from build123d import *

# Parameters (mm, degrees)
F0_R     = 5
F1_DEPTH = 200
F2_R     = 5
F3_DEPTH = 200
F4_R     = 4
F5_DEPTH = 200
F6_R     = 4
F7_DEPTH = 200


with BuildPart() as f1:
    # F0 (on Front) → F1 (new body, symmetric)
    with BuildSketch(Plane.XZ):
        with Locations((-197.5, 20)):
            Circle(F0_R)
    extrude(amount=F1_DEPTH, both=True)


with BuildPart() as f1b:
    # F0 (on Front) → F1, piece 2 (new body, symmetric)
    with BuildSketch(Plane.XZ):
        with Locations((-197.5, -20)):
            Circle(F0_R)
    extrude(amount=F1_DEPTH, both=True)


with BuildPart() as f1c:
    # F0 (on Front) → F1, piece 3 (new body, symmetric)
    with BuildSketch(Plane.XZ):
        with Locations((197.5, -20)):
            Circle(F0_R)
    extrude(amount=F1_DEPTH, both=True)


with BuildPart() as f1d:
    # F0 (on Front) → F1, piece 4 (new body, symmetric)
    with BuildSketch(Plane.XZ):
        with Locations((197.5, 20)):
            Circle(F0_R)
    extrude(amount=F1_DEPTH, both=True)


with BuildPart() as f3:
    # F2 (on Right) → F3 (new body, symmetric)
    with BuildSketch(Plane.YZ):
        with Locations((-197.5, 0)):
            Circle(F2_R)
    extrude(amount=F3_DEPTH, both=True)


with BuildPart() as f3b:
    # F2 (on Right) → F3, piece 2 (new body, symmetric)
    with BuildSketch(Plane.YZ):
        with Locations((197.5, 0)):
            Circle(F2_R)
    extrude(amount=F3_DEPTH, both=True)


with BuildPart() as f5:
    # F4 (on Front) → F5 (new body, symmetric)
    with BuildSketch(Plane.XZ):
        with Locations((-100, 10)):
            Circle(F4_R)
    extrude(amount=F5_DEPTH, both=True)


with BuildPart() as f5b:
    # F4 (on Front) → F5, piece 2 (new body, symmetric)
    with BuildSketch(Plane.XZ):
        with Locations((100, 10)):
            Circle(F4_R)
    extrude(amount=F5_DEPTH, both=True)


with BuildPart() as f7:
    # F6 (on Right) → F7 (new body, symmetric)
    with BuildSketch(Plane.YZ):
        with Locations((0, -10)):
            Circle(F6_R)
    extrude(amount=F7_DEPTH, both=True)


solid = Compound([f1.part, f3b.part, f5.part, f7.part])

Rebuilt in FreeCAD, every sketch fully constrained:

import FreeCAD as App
import Part
import Sketcher
Q = App.Units.Quantity

doc = App.newDocument("Part")
params = doc.addObject("Spreadsheet::Sheet", "Params")
for row, (alias, value) in enumerate([
    ("sketch1_diameter", "10 mm"),
    ("pad1_length", "400 mm"),
    ("sketch2_diameter", "10 mm"),
    ("pad2_length", "400 mm"),
    ("sketch3_diameter", "10 mm"),
    ("pad3_length", "400 mm"),
    ("sketch4_diameter", "10 mm"),
    ("pad4_length", "400 mm"),
    ("sketch5_diameter", "10 mm"),
    ("pad5_length", "400 mm"),
    ("sketch6_diameter", "10 mm"),
    ("pad6_length", "400 mm"),
    ("sketch7_diameter", "8 mm"),
    ("pad7_length", "400 mm"),
    ("sketch8_diameter", "8 mm"),
    ("pad8_length", "400 mm"),
    ("sketch9_diameter", "8 mm"),
    ("pad9_length", "400 mm"),
], start=1):
    params.set(f"A{row}", alias)
    params.set(f"B{row}", "=" + value)
    params.setAlias(f"B{row}", alias)

body = doc.addObject("PartDesign::Body", "Body")

# Sketch on XZ plane
sketch1 = doc.addObject("Sketcher::SketchObject", "Sketch")
body.addObject(sketch1)
sketch1.AttachmentSupport = (doc.XZ_Plane, [""])
sketch1.MapMode = "FlatFace"
sketch1.addGeometry(Part.Circle(App.Vector(-197.5, 20, 0), App.Vector(0, 0, 1), 5), False)
sketch1.addConstraint(Sketcher.Constraint("Diameter", 0, Q("10 mm")))
sketch1.addConstraint(Sketcher.Constraint("DistanceY", -1, 1, 0, 3, Q("20 mm")))
sketch1.addConstraint(Sketcher.Constraint("DistanceX", 0, 3, -1, 1, Q("197.5 mm")))
sketch1.setExpression("Constraints[0]", "Params.sketch1_diameter")
pad1 = doc.addObject("PartDesign::Pad", "Pad")
body.addObject(pad1)
pad1.Profile = sketch1
pad1.setExpression("Length", "Params.pad1_length")
pad1.Midplane = True
body2 = doc.addObject("PartDesign::Body", "Body001")

# Sketch on XZ plane
sketch2 = doc.addObject("Sketcher::SketchObject", "Sketch001")
body2.addObject(sketch2)
sketch2.AttachmentSupport = (doc.getObject("XZ_Plane001"), [""])
sketch2.MapMode = "FlatFace"
sketch2.addGeometry(Part.Circle(App.Vector(-197.5, -20, 0), App.Vector(0, 0, 1), 5), False)
sketch2.addConstraint(Sketcher.Constraint("Diameter", 0, Q("10 mm")))
sketch2.addConstraint(Sketcher.Constraint("DistanceY", 0, 3, -1, 1, Q("20 mm")))
sketch2.addConstraint(Sketcher.Constraint("DistanceX", 0, 3, -1, 1, Q("197.5 mm")))
sketch2.setExpression("Constraints[0]", "Params.sketch2_diameter")
pad2 = doc.addObject("PartDesign::Pad", "Pad001")
body2.addObject(pad2)
pad2.Profile = sketch2
pad2.setExpression("Length", "Params.pad2_length")
pad2.Midplane = True
body3 = doc.addObject("PartDesign::Body", "Body002")

# Sketch on XZ plane
sketch3 = doc.addObject("Sketcher::SketchObject", "Sketch002")
body3.addObject(sketch3)
sketch3.AttachmentSupport = (doc.getObject("XZ_Plane002"), [""])
sketch3.MapMode = "FlatFace"
sketch3.addGeometry(Part.Circle(App.Vector(197.5, -20, 0), App.Vector(0, 0, 1), 5), False)
sketch3.addConstraint(Sketcher.Constraint("Diameter", 0, Q("10 mm")))
sketch3.addConstraint(Sketcher.Constraint("DistanceY", 0, 3, -1, 1, Q("20 mm")))
sketch3.addConstraint(Sketcher.Constraint("DistanceX", -1, 1, 0, 3, Q("197.5 mm")))
sketch3.setExpression("Constraints[0]", "Params.sketch3_diameter")
pad3 = doc.addObject("PartDesign::Pad", "Pad002")
body3.addObject(pad3)
pad3.Profile = sketch3
pad3.setExpression("Length", "Params.pad3_length")
pad3.Midplane = True
body4 = doc.addObject("PartDesign::Body", "Body003")

# Sketch on XZ plane
sketch4 = doc.addObject("Sketcher::SketchObject", "Sketch003")
body4.addObject(sketch4)
sketch4.AttachmentSupport = (doc.getObject("XZ_Plane003"), [""])
sketch4.MapMode = "FlatFace"
sketch4.addGeometry(Part.Circle(App.Vector(197.5, 20, 0), App.Vector(0, 0, 1), 5), False)
sketch4.addConstraint(Sketcher.Constraint("Diameter", 0, Q("10 mm")))
sketch4.addConstraint(Sketcher.Constraint("DistanceY", -1, 1, 0, 3, Q("20 mm")))
sketch4.addConstraint(Sketcher.Constraint("DistanceX", -1, 1, 0, 3, Q("197.5 mm")))
sketch4.setExpression("Constraints[0]", "Params.sketch4_diameter")
pad4 = doc.addObject("PartDesign::Pad", "Pad003")
body4.addObject(pad4)
pad4.Profile = sketch4
pad4.setExpression("Length", "Params.pad4_length")
pad4.Midplane = True
body5 = doc.addObject("PartDesign::Body", "Body004")

# Sketch on YZ plane
sketch5 = doc.addObject("Sketcher::SketchObject", "Sketch004")
body5.addObject(sketch5)
sketch5.AttachmentSupport = (doc.getObject("YZ_Plane004"), [""])
sketch5.MapMode = "FlatFace"
sketch5.addGeometry(Part.Circle(App.Vector(-197.5, 0, 0), App.Vector(0, 0, 1), 5), False)
sketch5.addConstraint(Sketcher.Constraint("PointOnObject", 0, 3, -1))
sketch5.addConstraint(Sketcher.Constraint("Diameter", 0, Q("10 mm")))
sketch5.addConstraint(Sketcher.Constraint("DistanceX", 0, 3, -1, 1, Q("197.5 mm")))
sketch5.setExpression("Constraints[1]", "Params.sketch5_diameter")
pad5 = doc.addObject("PartDesign::Pad", "Pad004")
body5.addObject(pad5)
pad5.Profile = sketch5
pad5.setExpression("Length", "Params.pad5_length")
pad5.Midplane = True
body6 = doc.addObject("PartDesign::Body", "Body005")

# Sketch on YZ plane
sketch6 = doc.addObject("Sketcher::SketchObject", "Sketch005")
body6.addObject(sketch6)
sketch6.AttachmentSupport = (doc.getObject("YZ_Plane005"), [""])
sketch6.MapMode = "FlatFace"
sketch6.addGeometry(Part.Circle(App.Vector(197.5, 0, 0), App.Vector(0, 0, 1), 5), False)
sketch6.addConstraint(Sketcher.Constraint("PointOnObject", 0, 3, -1))
sketch6.addConstraint(Sketcher.Constraint("Diameter", 0, Q("10 mm")))
sketch6.addConstraint(Sketcher.Constraint("DistanceX", -1, 1, 0, 3, Q("197.5 mm")))
sketch6.setExpression("Constraints[1]", "Params.sketch6_diameter")
pad6 = doc.addObject("PartDesign::Pad", "Pad005")
body6.addObject(pad6)
pad6.Profile = sketch6
pad6.setExpression("Length", "Params.pad6_length")
pad6.Midplane = True
body7 = doc.addObject("PartDesign::Body", "Body006")

# Sketch on XZ plane
sketch7 = doc.addObject("Sketcher::SketchObject", "Sketch006")
body7.addObject(sketch7)
sketch7.AttachmentSupport = (doc.getObject("XZ_Plane006"), [""])
sketch7.MapMode = "FlatFace"
sketch7.addGeometry(Part.Circle(App.Vector(-100, 10, 0), App.Vector(0, 0, 1), 4), False)
sketch7.addConstraint(Sketcher.Constraint("Diameter", 0, Q("8 mm")))
sketch7.addConstraint(Sketcher.Constraint("DistanceX", 0, 3, -1, 1, Q("100 mm")))
sketch7.addConstraint(Sketcher.Constraint("DistanceY", -1, 1, 0, 3, Q("10 mm")))
sketch7.setExpression("Constraints[0]", "Params.sketch7_diameter")
pad7 = doc.addObject("PartDesign::Pad", "Pad006")
body7.addObject(pad7)
pad7.Profile = sketch7
pad7.setExpression("Length", "Params.pad7_length")
pad7.Midplane = True
body8 = doc.addObject("PartDesign::Body", "Body007")

# Sketch on XZ plane
sketch8 = doc.addObject("Sketcher::SketchObject", "Sketch007")
body8.addObject(sketch8)
sketch8.AttachmentSupport = (doc.getObject("XZ_Plane007"), [""])
sketch8.MapMode = "FlatFace"
sketch8.addGeometry(Part.Circle(App.Vector(100, 10, 0), App.Vector(0, 0, 1), 4), False)
sketch8.addConstraint(Sketcher.Constraint("Diameter", 0, Q("8 mm")))
sketch8.addConstraint(Sketcher.Constraint("DistanceX", -1, 1, 0, 3, Q("100 mm")))
sketch8.addConstraint(Sketcher.Constraint("DistanceY", -1, 1, 0, 3, Q("10 mm")))
sketch8.setExpression("Constraints[0]", "Params.sketch8_diameter")
pad8 = doc.addObject("PartDesign::Pad", "Pad007")
body8.addObject(pad8)
pad8.Profile = sketch8
pad8.setExpression("Length", "Params.pad8_length")
pad8.Midplane = True
body9 = doc.addObject("PartDesign::Body", "Body008")

# Sketch on YZ plane
sketch9 = doc.addObject("Sketcher::SketchObject", "Sketch008")
body9.addObject(sketch9)
sketch9.AttachmentSupport = (doc.getObject("YZ_Plane008"), [""])
sketch9.MapMode = "FlatFace"
sketch9.addGeometry(Part.Circle(App.Vector(0, -10, 0), App.Vector(0, 0, 1), 4), False)
sketch9.addConstraint(Sketcher.Constraint("PointOnObject", 0, 3, -2))
sketch9.addConstraint(Sketcher.Constraint("Diameter", 0, Q("8 mm")))
sketch9.addConstraint(Sketcher.Constraint("DistanceY", 0, 3, -1, 1, Q("10 mm")))
sketch9.setExpression("Constraints[1]", "Params.sketch9_diameter")
pad9 = doc.addObject("PartDesign::Pad", "Pad008")
body9.addObject(pad9)
pad9.Profile = sketch9
pad9.setExpression("Length", "Params.pad9_length")
pad9.Midplane = True
body2.Visibility = False
body3.Visibility = False
body4.Visibility = False
body5.Visibility = False
body8.Visibility = False

doc.recompute()
